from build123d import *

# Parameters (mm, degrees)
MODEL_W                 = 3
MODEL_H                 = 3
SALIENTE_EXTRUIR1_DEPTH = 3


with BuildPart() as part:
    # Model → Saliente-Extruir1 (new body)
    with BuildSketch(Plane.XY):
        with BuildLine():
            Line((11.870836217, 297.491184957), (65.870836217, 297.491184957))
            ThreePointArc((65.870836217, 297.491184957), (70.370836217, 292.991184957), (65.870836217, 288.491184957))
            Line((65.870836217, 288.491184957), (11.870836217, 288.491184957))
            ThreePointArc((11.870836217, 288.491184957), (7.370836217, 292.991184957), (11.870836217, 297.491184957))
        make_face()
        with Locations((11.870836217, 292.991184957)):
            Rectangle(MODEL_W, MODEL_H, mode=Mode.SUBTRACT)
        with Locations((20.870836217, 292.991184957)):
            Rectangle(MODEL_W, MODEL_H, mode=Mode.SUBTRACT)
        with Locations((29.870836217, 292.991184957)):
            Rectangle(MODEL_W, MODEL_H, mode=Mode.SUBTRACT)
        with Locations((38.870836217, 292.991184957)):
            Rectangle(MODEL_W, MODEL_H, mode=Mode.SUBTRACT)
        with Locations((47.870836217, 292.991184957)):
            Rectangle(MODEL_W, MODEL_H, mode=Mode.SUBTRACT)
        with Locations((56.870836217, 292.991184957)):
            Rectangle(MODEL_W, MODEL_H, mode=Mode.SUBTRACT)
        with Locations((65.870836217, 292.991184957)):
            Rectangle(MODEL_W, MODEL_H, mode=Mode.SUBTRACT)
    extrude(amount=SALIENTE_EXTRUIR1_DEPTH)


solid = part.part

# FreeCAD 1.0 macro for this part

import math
import FreeCAD as App
import Part
import Sketcher
from FreeCAD import Vector
Q = App.Units.Quantity


def add_polygon(sketch, points):
    """Adds a closed chain of lines whose ends are joined by coincident constraints."""
    first, n = sketch.GeometryCount, len(points)
    for a, b in zip(points, points[1:] + points[:1]):
        sketch.addGeometry(Part.LineSegment(App.Vector(*a, 0), App.Vector(*b, 0)), False)
    for i in range(n):
        sketch.addConstraint(Sketcher.Constraint("Coincident", first + i, 2, first + (i + 1) % n, 1))

doc = App.newDocument("Part")
body = doc.addObject("PartDesign::Body", "Body")

sketch1 = body.newObject("Sketcher::SketchObject", "Sketch")
sketch1.AttachmentSupport = (doc.getObject("XY_Plane"), [""])
sketch1.MapMode = "FlatFace"
sketch1.addGeometry(Part.LineSegment(Vector(65.9, 297.5, 0), Vector(11.9, 297.5, 0)), False)
sketch1.addGeometry(Part.ArcOfCircle(Part.Circle(Vector(11.9, 293, 0), Vector(0, 0, 1), 4.5), math.radians(90), math.radians(270)), False)
sketch1.addGeometry(Part.LineSegment(Vector(11.9, 288.5, 0), Vector(65.9, 288.5, 0)), False)
sketch1.addGeometry(Part.ArcOfCircle(Part.Circle(Vector(65.9, 293, 0), Vector(0, 0, 1), 4.5), math.radians(-90), math.radians(90)), False)
add_polygon(sketch1, [(64.4, 291.5), (64.4, 294.5), (67.4, 294.5), (67.4, 291.5)])
add_polygon(sketch1, [(55.4, 291.5), (55.4, 294.5), (58.4, 294.5), (58.4, 291.5)])
add_polygon(sketch1, [(46.4, 291.5), (46.4, 294.5), (49.4, 294.5), (49.4, 291.5)])
add_polygon(sketch1, [(37.4, 291.5), (37.4, 294.5), (40.4, 294.5), (40.4, 291.5)])
add_polygon(sketch1, [(28.4, 291.5), (28.4, 294.5), (31.4, 294.5), (31.4, 291.5)])
add_polygon(sketch1, [(19.4, 291.5), (19.4, 294.5), (22.4, 294.5), (22.4, 291.5)])
add_polygon(sketch1, [(10.4, 291.5), (10.4, 294.5), (13.4, 294.5), (13.4, 291.5)])
sketch1.addConstraint(Sketcher.Constraint("Tangent", 0, 2, 1, 1))
sketch1.addConstraint(Sketcher.Constraint("Tangent", 1, 2, 2, 1))
sketch1.addConstraint(Sketcher.Constraint("Tangent", 2, 2, 3, 1))
sketch1.addConstraint(Sketcher.Constraint("Tangent", 3, 2, 0, 1))
sketch1.addConstraint(Sketcher.Constraint("Horizontal", 0))
sketch1.addConstraint(Sketcher.Constraint("Horizontal", 2))
sketch1.addConstraint(Sketcher.Constraint("Vertical", 4))
sketch1.addConstraint(Sketcher.Constraint("Horizontal", 5))
sketch1.addConstraint(Sketcher.Constraint("Vertical", 6))
sketch1.addConstraint(Sketcher.Constraint("Horizontal", 7))
sketch1.addConstraint(Sketcher.Constraint("Vertical", 8))
sketch1.addConstraint(Sketcher.Constraint("Horizontal", 9))
sketch1.addConstraint(Sketcher.Constraint("Vertical", 10))
sketch1.addConstraint(Sketcher.Constraint("Horizontal", 11))
sketch1.addConstraint(Sketcher.Constraint("Vertical", 12))
sketch1.addConstraint(Sketcher.Constraint("Horizontal", 13))
sketch1.addConstraint(Sketcher.Constraint("Vertical", 14))
sketch1.addConstraint(Sketcher.Constraint("Horizontal", 15))
sketch1.addConstraint(Sketcher.Constraint("Vertical", 16))
sketch1.addConstraint(Sketcher.Constraint("Horizontal", 17))
sketch1.addConstraint(Sketcher.Constraint("Vertical", 18))
sketch1.addConstraint(Sketcher.Constraint("Horizontal", 19))
sketch1.addConstraint(Sketcher.Constraint("Vertical", 20))
sketch1.addConstraint(Sketcher.Constraint("Horizontal", 21))
sketch1.addConstraint(Sketcher.Constraint("Vertical", 22))
sketch1.addConstraint(Sketcher.Constraint("Horizontal", 23))
sketch1.addConstraint(Sketcher.Constraint("Vertical", 24))
sketch1.addConstraint(Sketcher.Constraint("Horizontal", 25))
sketch1.addConstraint(Sketcher.Constraint("Vertical", 26))
sketch1.addConstraint(Sketcher.Constraint("Horizontal", 27))
sketch1.addConstraint(Sketcher.Constraint("Vertical", 28))
sketch1.addConstraint(Sketcher.Constraint("Horizontal", 29))
sketch1.addConstraint(Sketcher.Constraint("Vertical", 30))
sketch1.addConstraint(Sketcher.Constraint("Horizontal", 31))
sketch1.addConstraint(Sketcher.Constraint("Horizontal", 5, 2, 8, 2))
sketch1.addConstraint(Sketcher.Constraint("Horizontal", 7, 2, 10, 2))
sketch1.addConstraint(Sketcher.Constraint("Horizontal", 9, 2, 12, 2))
sketch1.addConstraint(Sketcher.Constraint("Horizontal", 11, 2, 14, 2))
sketch1.addConstraint(Sketcher.Constraint("Horizontal", 13, 2, 16, 2))
sketch1.addConstraint(Sketcher.Constraint("Horizontal", 15, 2, 18, 2))
sketch1.addConstraint(Sketcher.Constraint("Horizontal", 17, 2, 20, 2))
sketch1.addConstraint(Sketcher.Constraint("Horizontal", 19, 2, 22, 2))
sketch1.addConstraint(Sketcher.Constraint("Horizontal", 21, 2, 24, 2))
sketch1.addConstraint(Sketcher.Constraint("Horizontal", 23, 2, 26, 2))
sketch1.addConstraint(Sketcher.Constraint("Horizontal", 25, 2, 28, 2))
sketch1.addConstraint(Sketcher.Constraint("Horizontal", 27, 2, 30, 2))
sketch1.addConstraint(Sketcher.Constraint("Equal", 7, 9))
sketch1.addConstraint(Sketcher.Constraint("Equal", 11, 13))
sketch1.addConstraint(Sketcher.Constraint("Equal", 15, 17))
sketch1.addConstraint(Sketcher.Constraint("Equal", 19, 21))
sketch1.addConstraint(Sketcher.Constraint("Equal", 23, 25))
sketch1.addConstraint(Sketcher.Constraint("Equal", 27, 29))
sketch1.addConstraint(Sketcher.Constraint("Equal", 31, 4))
sketch1.addConstraint(Sketcher.Constraint("Radius", 1, Q("4.5 mm")))
sketch1.addConstraint(Sketcher.Constraint("DistanceX", 0, 2, 0, 1, Q("54 mm")))
sketch1.addConstraint(Sketcher.Constraint("DistanceX", 5, 1, 5, 2, Q("3 mm")))
sketch1.addConstraint(Sketcher.Constraint("DistanceY", 4, 2, 3, 2, Q("3 mm")))
sketch1.addConstraint(Sketcher.Constraint("DistanceX", 8, 2, 4, 2, Q("9 mm")))
sketch1.addConstraint(Sketcher.Constraint("DistanceX", 12, 2, 8, 2, Q("9 mm")))
sketch1.addConstraint(Sketcher.Constraint("DistanceX", 16, 2, 12, 2, Q("9 mm")))
sketch1.addConstraint(Sketcher.Constraint("DistanceX", 20, 2, 16, 2, Q("9 mm")))
sketch1.addConstraint(Sketcher.Constraint("DistanceX", 24, 2, 20, 2, Q("9 mm")))
sketch1.addConstraint(Sketcher.Constraint("DistanceX", 28, 2, 24, 2, Q("9 mm")))
sketch1.addConstraint(Sketcher.Constraint("DistanceX", 4, 2, 3, 3, Q("1.5 mm")))
sketch1.addConstraint(Sketcher.Constraint("DistanceX", -1, 1, 1, 3, Q("11.870836 mm")))
sketch1.addConstraint(Sketcher.Constraint("DistanceY", -1, 1, 1, 3, Q("292.991185 mm")))
pad1 = body.newObject("PartDesign::Pad", "Pad")
pad1.Profile = sketch1
pad1.Length = 3

doc.recompute()
